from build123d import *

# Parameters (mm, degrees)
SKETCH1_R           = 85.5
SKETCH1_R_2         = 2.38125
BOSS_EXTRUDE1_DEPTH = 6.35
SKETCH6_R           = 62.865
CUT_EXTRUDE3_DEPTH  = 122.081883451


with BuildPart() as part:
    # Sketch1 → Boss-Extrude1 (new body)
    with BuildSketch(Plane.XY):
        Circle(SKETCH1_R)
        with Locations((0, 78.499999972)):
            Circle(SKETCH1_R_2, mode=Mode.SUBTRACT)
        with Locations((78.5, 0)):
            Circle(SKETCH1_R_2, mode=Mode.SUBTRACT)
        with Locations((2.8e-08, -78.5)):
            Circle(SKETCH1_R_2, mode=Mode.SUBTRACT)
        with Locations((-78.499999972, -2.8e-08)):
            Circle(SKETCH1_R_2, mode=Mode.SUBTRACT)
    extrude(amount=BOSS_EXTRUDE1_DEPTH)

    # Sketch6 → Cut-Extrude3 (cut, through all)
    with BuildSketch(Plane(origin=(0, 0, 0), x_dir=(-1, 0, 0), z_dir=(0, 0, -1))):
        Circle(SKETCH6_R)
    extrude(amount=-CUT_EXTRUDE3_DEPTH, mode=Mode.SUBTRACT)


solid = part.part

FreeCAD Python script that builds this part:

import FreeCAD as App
import Part
import Sketcher
Q = App.Units.Quantity

doc = App.newDocument("Part")
body = doc.addObject("PartDesign::Body", "Body")

# Sketch on XY plane
sketch1 = body.newObject("Sketcher::SketchObject", "Sketch")
sketch1.AttachmentSupport = (doc.getObject("XY_Plane"), [""])
sketch1.MapMode = "FlatFace"
sketch1.addGeometry([
    Part.Circle(App.Vector(0, 0, 0), App.Vector(0, 0, 1), 85.5),  # 0
    Part.Circle(App.Vector(-78.5, 0, 0), App.Vector(0, 0, 1), 2.4),  # 1
    Part.Circle(App.Vector(0, -78.5, 0), App.Vector(0, 0, 1), 2.4),  # 2
    Part.Circle(App.Vector(0, 78.5, 0), App.Vector(0, 0, 1), 2.4),  # 3
    Part.Circle(App.Vector(78.5, 0, 0), App.Vector(0, 0, 1), 2.4),  # 4
], False)
sketch1.addConstraint([
    Sketcher.Constraint("Coincident", 0, 3, -1, 1),
    Sketcher.Constraint("Equal", 1, 2),
    Sketcher.Constraint("Equal", 2, 3),
    Sketcher.Constraint("Equal", 3, 4),
    Sketcher.Constraint("Symmetric", 2, 3, 3, 3, -1, 1),
    Sketcher.Constraint("Symmetric", 1, 3, 4, 3, -1, 1),
    Sketcher.Constraint("PointOnObject", 1, 3, -1),
    Sketcher.Constraint("PointOnObject", 2, 3, -2),
    Sketcher.Constraint("Diameter", 1, Q("0.1875 in")),
    Sketcher.Constraint("Diameter", 0, Q("171 mm")),
    Sketcher.Constraint("DistanceX", 1, 3, -1, 1, Q("78.5 mm")),
    Sketcher.Constraint("DistanceY", 2, 3, -1, 1, Q("78.5 mm")),
])
pad1 = body.newObject("PartDesign::Pad", "Pad")
pad1.Profile = sketch1
pad1.Length = Q("0.25 in")

# Sketch on XY plane
sketch2 = body.newObject("Sketcher::SketchObject", "Sketch001")
sketch2.AttachmentSupport = (doc.getObject("XY_Plane"), [""])
sketch2.MapMode = "FlatFace"
sketch2.addGeometry(Part.Circle(App.Vector(0, 0, 0), App.Vector(0, 0, 1), 63), False)
sketch2.addConstraint([
    Sketcher.Constraint("Coincident", 0, 3, -1, 1),
    Sketcher.Constraint("Diameter", 0, Q("4.95 in")),
])
pocket1 = body.newObject("PartDesign::Pocket", "Pocket")
pocket1.Profile = sketch2
pocket1.Type = "ThroughAll"
pocket1.Reversed = True

doc.recompute()
